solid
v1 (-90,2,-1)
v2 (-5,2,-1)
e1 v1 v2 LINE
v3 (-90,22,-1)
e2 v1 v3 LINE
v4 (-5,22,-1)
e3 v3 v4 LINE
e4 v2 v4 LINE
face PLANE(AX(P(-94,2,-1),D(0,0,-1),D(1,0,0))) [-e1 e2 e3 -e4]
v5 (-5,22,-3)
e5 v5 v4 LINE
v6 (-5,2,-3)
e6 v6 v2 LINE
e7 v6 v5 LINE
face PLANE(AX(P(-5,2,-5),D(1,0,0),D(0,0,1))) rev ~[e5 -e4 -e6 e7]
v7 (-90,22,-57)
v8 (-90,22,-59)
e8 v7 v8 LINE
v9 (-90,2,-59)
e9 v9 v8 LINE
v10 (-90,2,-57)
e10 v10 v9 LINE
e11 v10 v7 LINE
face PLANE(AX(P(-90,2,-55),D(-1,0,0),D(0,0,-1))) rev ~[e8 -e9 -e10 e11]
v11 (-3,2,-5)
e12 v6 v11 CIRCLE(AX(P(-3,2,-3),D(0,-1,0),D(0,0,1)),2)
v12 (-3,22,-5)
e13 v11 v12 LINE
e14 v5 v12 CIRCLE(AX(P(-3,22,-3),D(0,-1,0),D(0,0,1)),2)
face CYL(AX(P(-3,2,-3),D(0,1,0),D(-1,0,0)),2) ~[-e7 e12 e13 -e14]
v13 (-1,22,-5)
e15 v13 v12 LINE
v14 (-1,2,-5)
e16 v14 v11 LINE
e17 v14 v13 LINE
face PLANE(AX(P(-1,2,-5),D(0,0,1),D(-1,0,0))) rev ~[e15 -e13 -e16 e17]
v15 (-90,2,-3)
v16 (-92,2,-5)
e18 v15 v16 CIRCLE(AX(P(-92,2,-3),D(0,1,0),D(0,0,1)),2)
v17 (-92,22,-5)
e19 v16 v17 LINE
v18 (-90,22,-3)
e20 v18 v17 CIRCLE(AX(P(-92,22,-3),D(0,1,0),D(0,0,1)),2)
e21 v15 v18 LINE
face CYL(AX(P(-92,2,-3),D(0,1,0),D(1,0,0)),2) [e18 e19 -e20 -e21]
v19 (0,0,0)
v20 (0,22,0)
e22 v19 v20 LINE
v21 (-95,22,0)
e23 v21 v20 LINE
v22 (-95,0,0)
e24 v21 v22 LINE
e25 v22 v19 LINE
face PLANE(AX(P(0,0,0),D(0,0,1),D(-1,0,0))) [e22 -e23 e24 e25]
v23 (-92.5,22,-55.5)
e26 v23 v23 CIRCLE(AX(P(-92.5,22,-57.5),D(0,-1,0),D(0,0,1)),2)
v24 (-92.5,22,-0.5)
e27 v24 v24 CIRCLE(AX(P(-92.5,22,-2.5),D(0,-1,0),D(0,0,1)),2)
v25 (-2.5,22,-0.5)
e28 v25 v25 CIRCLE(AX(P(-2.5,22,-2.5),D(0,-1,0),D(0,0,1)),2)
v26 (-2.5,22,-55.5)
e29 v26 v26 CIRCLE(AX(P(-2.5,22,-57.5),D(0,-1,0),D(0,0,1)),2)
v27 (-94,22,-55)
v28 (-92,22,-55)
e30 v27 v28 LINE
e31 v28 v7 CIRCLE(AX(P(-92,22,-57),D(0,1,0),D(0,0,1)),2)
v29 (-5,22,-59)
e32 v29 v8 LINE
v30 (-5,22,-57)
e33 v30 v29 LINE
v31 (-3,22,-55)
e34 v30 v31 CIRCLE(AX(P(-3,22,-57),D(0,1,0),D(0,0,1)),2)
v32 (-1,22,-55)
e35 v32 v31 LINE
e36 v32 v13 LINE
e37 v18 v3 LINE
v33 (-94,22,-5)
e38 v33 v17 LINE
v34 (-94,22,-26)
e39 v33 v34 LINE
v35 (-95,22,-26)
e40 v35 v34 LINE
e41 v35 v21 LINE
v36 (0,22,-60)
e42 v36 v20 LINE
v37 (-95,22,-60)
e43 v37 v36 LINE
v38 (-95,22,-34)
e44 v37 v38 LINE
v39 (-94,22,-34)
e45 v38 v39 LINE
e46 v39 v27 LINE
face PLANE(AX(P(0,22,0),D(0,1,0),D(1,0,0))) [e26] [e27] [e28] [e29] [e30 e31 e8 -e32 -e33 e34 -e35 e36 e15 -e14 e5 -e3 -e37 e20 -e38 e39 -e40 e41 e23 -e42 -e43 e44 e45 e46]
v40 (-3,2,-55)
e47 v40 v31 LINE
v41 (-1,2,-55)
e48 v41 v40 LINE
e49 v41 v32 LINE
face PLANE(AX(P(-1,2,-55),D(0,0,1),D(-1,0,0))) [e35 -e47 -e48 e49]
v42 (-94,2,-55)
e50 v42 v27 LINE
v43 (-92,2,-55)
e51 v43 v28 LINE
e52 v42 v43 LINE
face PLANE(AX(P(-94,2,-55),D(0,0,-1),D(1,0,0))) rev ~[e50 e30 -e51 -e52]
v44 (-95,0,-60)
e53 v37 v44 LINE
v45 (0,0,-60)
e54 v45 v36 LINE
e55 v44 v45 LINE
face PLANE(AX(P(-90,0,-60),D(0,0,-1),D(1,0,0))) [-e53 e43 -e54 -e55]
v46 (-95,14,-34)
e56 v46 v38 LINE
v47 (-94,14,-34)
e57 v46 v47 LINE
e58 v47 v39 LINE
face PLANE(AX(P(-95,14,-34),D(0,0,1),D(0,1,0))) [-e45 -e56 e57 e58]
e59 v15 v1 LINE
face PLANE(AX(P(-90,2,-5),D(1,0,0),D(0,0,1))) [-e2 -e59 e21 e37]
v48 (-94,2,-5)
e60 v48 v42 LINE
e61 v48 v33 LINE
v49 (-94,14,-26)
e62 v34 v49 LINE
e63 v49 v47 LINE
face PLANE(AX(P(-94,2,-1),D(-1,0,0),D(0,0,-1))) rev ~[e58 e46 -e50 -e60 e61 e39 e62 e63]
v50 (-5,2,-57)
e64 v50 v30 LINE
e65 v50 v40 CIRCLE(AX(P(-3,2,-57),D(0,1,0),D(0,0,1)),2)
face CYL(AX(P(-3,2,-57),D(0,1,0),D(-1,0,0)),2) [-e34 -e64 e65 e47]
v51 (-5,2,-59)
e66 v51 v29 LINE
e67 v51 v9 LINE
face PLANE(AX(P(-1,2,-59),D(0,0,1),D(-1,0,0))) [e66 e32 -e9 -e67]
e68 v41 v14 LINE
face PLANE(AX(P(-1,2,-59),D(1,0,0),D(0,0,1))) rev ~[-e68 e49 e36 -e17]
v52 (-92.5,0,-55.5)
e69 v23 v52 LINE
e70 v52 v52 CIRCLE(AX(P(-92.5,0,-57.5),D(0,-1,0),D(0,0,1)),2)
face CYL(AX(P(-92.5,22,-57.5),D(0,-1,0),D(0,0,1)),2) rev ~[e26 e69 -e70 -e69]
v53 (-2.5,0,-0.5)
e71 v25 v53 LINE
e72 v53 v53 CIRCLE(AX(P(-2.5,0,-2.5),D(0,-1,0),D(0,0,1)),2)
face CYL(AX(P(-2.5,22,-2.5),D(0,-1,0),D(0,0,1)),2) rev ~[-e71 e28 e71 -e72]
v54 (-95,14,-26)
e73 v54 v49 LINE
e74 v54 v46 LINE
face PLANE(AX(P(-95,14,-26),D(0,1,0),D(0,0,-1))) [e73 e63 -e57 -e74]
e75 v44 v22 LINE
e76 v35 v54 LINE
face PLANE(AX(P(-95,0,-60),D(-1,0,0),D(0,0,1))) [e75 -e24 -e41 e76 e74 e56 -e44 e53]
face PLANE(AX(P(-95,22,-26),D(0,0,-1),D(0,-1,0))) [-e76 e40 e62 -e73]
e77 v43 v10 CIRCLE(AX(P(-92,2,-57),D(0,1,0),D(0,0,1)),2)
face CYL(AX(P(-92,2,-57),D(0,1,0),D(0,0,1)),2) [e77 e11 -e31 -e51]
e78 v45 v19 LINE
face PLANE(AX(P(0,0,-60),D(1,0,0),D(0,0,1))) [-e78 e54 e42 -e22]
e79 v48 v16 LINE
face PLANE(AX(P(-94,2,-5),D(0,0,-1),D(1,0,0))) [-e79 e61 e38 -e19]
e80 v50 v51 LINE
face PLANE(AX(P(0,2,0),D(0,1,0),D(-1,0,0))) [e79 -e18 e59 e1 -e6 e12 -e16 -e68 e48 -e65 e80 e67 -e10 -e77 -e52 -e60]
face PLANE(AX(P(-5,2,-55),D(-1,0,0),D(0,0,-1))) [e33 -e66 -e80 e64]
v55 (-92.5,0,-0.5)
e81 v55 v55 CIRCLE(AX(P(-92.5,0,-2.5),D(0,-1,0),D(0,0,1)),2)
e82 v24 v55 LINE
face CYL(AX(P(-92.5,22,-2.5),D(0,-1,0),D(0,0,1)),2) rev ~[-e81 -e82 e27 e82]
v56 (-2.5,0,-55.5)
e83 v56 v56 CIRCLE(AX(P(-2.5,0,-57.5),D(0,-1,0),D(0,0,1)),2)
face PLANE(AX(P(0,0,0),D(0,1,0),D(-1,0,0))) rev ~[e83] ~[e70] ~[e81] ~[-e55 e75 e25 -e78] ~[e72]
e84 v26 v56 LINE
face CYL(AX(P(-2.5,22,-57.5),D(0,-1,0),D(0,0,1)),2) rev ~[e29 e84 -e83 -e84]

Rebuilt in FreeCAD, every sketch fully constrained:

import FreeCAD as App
import Part
import Sketcher


def edges_at(feature, points):
    """Names of the edges that pass closest to the given points."""
    edges = feature.Shape.Edges
    near = lambda p: min(range(len(edges)), key=lambda i: edges[i].distToShape(Part.Vertex(*p))[0])
    return sorted({f"Edge{near(p) + 1}" for p in points})

doc = App.newDocument("Part")
params = doc.addObject("Spreadsheet::Sheet", "Params")
for row, (alias, value) in enumerate([
    ("sketch1_width", "90 mm"),
    ("sketch1_height", "60 mm"),
    ("pad1_length", "2 mm"),
    ("sketch2_width", "2 mm"),
    ("sketch2_height", "60 mm"),
    ("pad2_length", "5 mm"),
    ("sketch3_width", "95 mm"),
    ("sketch3_width2", "93 mm"),
    ("sketch3_height", "60 mm"),
    ("sketch3_height2", "58 mm"),
    ("pad3_length", "20 mm"),
    ("sketch4_width", "4 mm"),
    ("pad4_length", "20 mm"),
    ("sketch5_width", "4 mm"),
    ("pad5_length", "20 mm"),
    ("fillet_radius", "2 mm"),
    ("sketch6_diameter", "4 mm"),
    ("hole_diameter", "4 mm"),
    ("sketch7_width", "8 mm"),
    ("pocket1_length", "10 mm"),
], start=1):
    params.set(f"A{row}", alias)
    params.set(f"B{row}", "=" + value)
    params.setAlias(f"B{row}", alias)

body = doc.addObject("PartDesign::Body", "Body")

# Sketch on XZ plane
sketch1 = body.newObject("Sketcher::SketchObject", "Sketch")
sketch1.AttachmentSupport = (doc.getObject("XZ_Plane"), [""])
sketch1.MapMode = "FlatFace"
sketch1.addGeometry([
    Part.LineSegment(App.Vector(-90, 0, 0), App.Vector(0, 0, 0)),
    Part.LineSegment(App.Vector(0, 0, 0), App.Vector(0, -60, 0)),
    Part.LineSegment(App.Vector(0, -60, 0), App.Vector(-90, -60, 0)),
    Part.LineSegment(App.Vector(-90, -60, 0), App.Vector(-90, 0, 0)),
], False)
sketch1.addConstraint([
    Sketcher.Constraint("Coincident", 0, 2, 1, 1),
    Sketcher.Constraint("Coincident", 1, 2, 2, 1),
    Sketcher.Constraint("Coincident", 2, 2, 3, 1),
    Sketcher.Constraint("Coincident", 3, 2, 0, 1),
    Sketcher.Constraint("Horizontal", 0),
    Sketcher.Constraint("Vertical", 1),
    Sketcher.Constraint("Horizontal", 2),
    Sketcher.Constraint("Vertical", 3),
    Sketcher.Constraint("Coincident", 0, 2, -1, 1),
    Sketcher.Constraint("DistanceX", 0, 1, 0, 2, 90.0),
    Sketcher.Constraint("DistanceY", 1, 2, 1, 1, 60.0),
])
sketch1.setExpression("Constraints[9]", "Params.sketch1_width")
sketch1.setExpression("Constraints[10]", "Params.sketch1_height")
pad1 = body.newObject("PartDesign::Pad", "Pad")
pad1.Profile = sketch1
pad1.setExpression("Length", "Params.pad1_length")
pad1.Reversed = True

# Sketch on YZ plane
sketch2 = body.newObject("Sketcher::SketchObject", "Sketch001")
sketch2.AttachmentSupport = (doc.getObject("YZ_Plane"), [""])
sketch2.MapMode = "FlatFace"
sketch2.AttachmentOffset = App.Placement(App.Vector(0, 0, -90), App.Rotation())
sketch2.addGeometry([
    Part.LineSegment(App.Vector(2, -60, 0), App.Vector(0, -60, 0)),
    Part.LineSegment(App.Vector(0, -60, 0), App.Vector(0, 0, 0)),
    Part.LineSegment(App.Vector(0, 0, 0), App.Vector(2, 0, 0)),
    Part.LineSegment(App.Vector(2, 0, 0), App.Vector(2, -60, 0)),
], False)
sketch2.addConstraint([
    Sketcher.Constraint("Coincident", 0, 2, 1, 1),
    Sketcher.Constraint("Coincident", 1, 2, 2, 1),
    Sketcher.Constraint("Coincident", 2, 2, 3, 1),
    Sketcher.Constraint("Coincident", 3, 2, 0, 1),
    Sketcher.Constraint("Horizontal", 0),
    Sketcher.Constraint("Vertical", 1),
    Sketcher.Constraint("Horizontal", 2),
    Sketcher.Constraint("Vertical", 3),
    Sketcher.Constraint("Coincident", 1, 2, -1, 1),
    Sketcher.Constraint("DistanceX", 0, 2, 0, 1, 2.0),
    Sketcher.Constraint("DistanceY", 1, 1, 1, 2, 60.0),
])
sketch2.setExpression("Constraints[9]", "Params.sketch2_width")
sketch2.setExpression("Constraints[10]", "Params.sketch2_height")
pad2 = body.newObject("PartDesign::Pad", "Pad001")
pad2.Profile = sketch2
pad2.setExpression("Length", "Params.pad2_length")
pad2.Reversed = True

# Sketch on XZ plane
sketch3 = body.newObject("Sketcher::SketchObject", "Sketch002")
sketch3.AttachmentSupport = (doc.getObject("XZ_Plane"), [""])
sketch3.MapMode = "FlatFace"
sketch3.AttachmentOffset = App.Placement(App.Vector(0, 0, -2), App.Rotation())
sketch3.addGeometry([
    Part.LineSegment(App.Vector(0, -60, 0), App.Vector(-95, -60, 0)),  # 0
    Part.LineSegment(App.Vector(-95, -60, 0), App.Vector(-95, 0, 0)),  # 1
    Part.LineSegment(App.Vector(-95, 0, 0), App.Vector(0, 0, 0)),  # 2
    Part.LineSegment(App.Vector(0, 0, 0), App.Vector(0, -60, 0)),  # 3
    Part.LineSegment(App.Vector(-1, -59, 0), App.Vector(-1, -1, 0)),  # 4
    Part.LineSegment(App.Vector(-1, -1, 0), App.Vector(-94, -1, 0)),  # 5
    Part.LineSegment(App.Vector(-94, -1, 0), App.Vector(-94, -59, 0)),  # 6
    Part.LineSegment(App.Vector(-94, -59, 0), App.Vector(-1, -59, 0)),  # 7
], False)
sketch3.addConstraint([
    Sketcher.Constraint("Coincident", 0, 2, 1, 1),
    Sketcher.Constraint("Coincident", 1, 2, 2, 1),
    Sketcher.Constraint("Coincident", 2, 2, 3, 1),
    Sketcher.Constraint("Coincident", 3, 2, 0, 1),
    Sketcher.Constraint("Coincident", 4, 2, 5, 1),
    Sketcher.Constraint("Coincident", 5, 2, 6, 1),
    Sketcher.Constraint("Coincident", 6, 2, 7, 1),
    Sketcher.Constraint("Coincident", 7, 2, 4, 1),
    Sketcher.Constraint("Horizontal", 0),
    Sketcher.Constraint("Vertical", 1),
    Sketcher.Constraint("Horizontal", 2),
    Sketcher.Constraint("Vertical", 3),
    Sketcher.Constraint("Vertical", 4),
    Sketcher.Constraint("Horizontal", 5),
    Sketcher.Constraint("Vertical", 6),
    Sketcher.Constraint("Horizontal", 7),
    Sketcher.Constraint("Coincident", 2, 2, -1, 1),
    Sketcher.Constraint("DistanceX", 0, 2, 0, 1, 95.0),
    Sketcher.Constraint("DistanceX", 5, 2, 5, 1, 93.0),
    Sketcher.Constraint("DistanceY", 1, 1, 1, 2, 60.0),
    Sketcher.Constraint("DistanceY", 4, 1, 4, 2, 58.0),
    Sketcher.Constraint("DistanceX", 4, 2, -1, 1, 1.0),
    Sketcher.Constraint("DistanceY", 4, 2, -1, 1, 1.0),
])
sketch3.setExpression("Constraints[17]", "Params.sketch3_width")
sketch3.setExpression("Constraints[18]", "Params.sketch3_width2")
sketch3.setExpression("Constraints[19]", "Params.sketch3_height")
sketch3.setExpression("Constraints[20]", "Params.sketch3_height2")
pad3 = body.newObject("PartDesign::Pad", "Pad002")
pad3.Profile = sketch3
pad3.setExpression("Length", "Params.pad3_length")
pad3.Reversed = True

# Sketch on XZ plane
sketch4 = body.newObject("Sketcher::SketchObject", "Sketch003")
sketch4.AttachmentSupport = (doc.getObject("XZ_Plane"), [""])
sketch4.MapMode = "FlatFace"
sketch4.AttachmentOffset = App.Placement(App.Vector(0, 0, -2), App.Rotation())
sketch4.addGeometry([
    Part.LineSegment(App.Vector(-1, -1, 0), App.Vector(-1, -5, 0)),
    Part.LineSegment(App.Vector(-1, -5, 0), App.Vector(-5, -5, 0)),
    Part.LineSegment(App.Vector(-5, -5, 0), App.Vector(-5, -1, 0)),
    Part.LineSegment(App.Vector(-5, -1, 0), App.Vector(-1, -1, 0)),
], False)
sketch4.addConstraint([
    Sketcher.Constraint("Coincident", 0, 2, 1, 1),
    Sketcher.Constraint("Coincident", 1, 2, 2, 1),
    Sketcher.Constraint("Coincident", 2, 2, 3, 1),
    Sketcher.Constraint("Coincident", 3, 2, 0, 1),
    Sketcher.Constraint("Vertical", 0),
    Sketcher.Constraint("Horizontal", 1),
    Sketcher.Constraint("Vertical", 2),
    Sketcher.Constraint("Horizontal", 3),
    Sketcher.Constraint("Equal", 3, 0),
    Sketcher.Constraint("DistanceX", 1, 2, 1, 1, 4.0),
    Sketcher.Constraint("DistanceX", 0, 2, -1, 1, 1.0),
    Sketcher.Constraint("DistanceY", 0, 2, -1, 1, 5.0),
])
sketch4.setExpression("Constraints[9]", "Params.sketch4_width")
pad4 = body.newObject("PartDesign::Pad", "Pad003")
pad4.Profile = sketch4
pad4.setExpression("Length", "Params.pad4_length")
pad4.Reversed = True

# Sketch on XZ plane
sketch5 = body.newObject("Sketcher::SketchObject", "Sketch004")
sketch5.AttachmentSupport = (doc.getObject("XZ_Plane"), [""])
sketch5.MapMode = "FlatFace"
sketch5.AttachmentOffset = App.Placement(App.Vector(0, 0, -2), App.Rotation())
sketch5.addGeometry([
    Part.LineSegment(App.Vector(-90, -5, 0), App.Vector(-94, -5, 0)),  # 0
    Part.LineSegment(App.Vector(-94, -5, 0), App.Vector(-94, -1, 0)),  # 1
    Part.LineSegment(App.Vector(-94, -1, 0), App.Vector(-90, -1, 0)),  # 2
    Part.LineSegment(App.Vector(-90, -1, 0), App.Vector(-90, -5, 0)),  # 3
    Part.LineSegment(App.Vector(-90, -55, 0), App.Vector(-90, -59, 0)),  # 4
    Part.LineSegment(App.Vector(-90, -59, 0), App.Vector(-94, -59, 0)),  # 5
    Part.LineSegment(App.Vector(-94, -59, 0), App.Vector(-94, -55, 0)),  # 6
    Part.LineSegment(App.Vector(-94, -55, 0), App.Vector(-90, -55, 0)),  # 7
    Part.LineSegment(App.Vector(-1, -55, 0), App.Vector(-1, -59, 0)),  # 8
    Part.LineSegment(App.Vector(-1, -59, 0), App.Vector(-5, -59, 0)),  # 9
    Part.LineSegment(App.Vector(-5, -59, 0), App.Vector(-5, -55, 0)),  # 10
    Part.LineSegment(App.Vector(-5, -55, 0), App.Vector(-1, -55, 0)),  # 11
], False)
sketch5.addConstraint([
    Sketcher.Constraint("Coincident", 0, 2, 1, 1),
    Sketcher.Constraint("Coincident", 1, 2, 2, 1),
    Sketcher.Constraint("Coincident", 2, 2, 3, 1),
    Sketcher.Constraint("Coincident", 3, 2, 0, 1),
    Sketcher.Constraint("Coincident", 4, 2, 5, 1),
    Sketcher.Constraint("Coincident", 5, 2, 6, 1),
    Sketcher.Constraint("Coincident", 6, 2, 7, 1),
    Sketcher.Constraint("Coincident", 7, 2, 4, 1),
    Sketcher.Constraint("Coincident", 8, 2, 9, 1),
    Sketcher.Constraint("Coincident", 9, 2, 10, 1),
    Sketcher.Constraint("Coincident", 10, 2, 11, 1),
    Sketcher.Constraint("Coincident", 11, 2, 8, 1),
    Sketcher.Constraint("Horizontal", 0),
    Sketcher.Constraint("Vertical", 1),
    Sketcher.Constraint("Horizontal", 2),
    Sketcher.Constraint("Vertical", 3),
    Sketcher.Constraint("Vertical", 4),
    Sketcher.Constraint("Horizontal", 5),
    Sketcher.Constraint("Vertical", 6),
    Sketcher.Constraint("Horizontal", 7),
    Sketcher.Constraint("Vertical", 8),
    Sketcher.Constraint("Horizontal", 9),
    Sketcher.Constraint("Vertical", 10),
    Sketcher.Constraint("Horizontal", 11),
    Sketcher.Constraint("Horizontal", 5, 2, 8, 2),
    Sketcher.Constraint("Horizontal", 7, 2, 10, 2),
    Sketcher.Constraint("Vertical", 3, 2, 4, 2),
    Sketcher.Constraint("Vertical", 1, 2, 5, 2),
    Sketcher.Constraint("Equal", 7, 9),
    Sketcher.Constraint("Equal", 11, 1),
    Sketcher.Constraint("Equal", 3, 4),
    Sketcher.Constraint("DistanceX", 0, 2, 0, 1, 4.0),
    Sketcher.Constraint("DistanceX", 0, 2, -1, 1, 94.0),
    Sketcher.Constraint("DistanceY", 0, 2, -1, 1, 5.0),
    Sketcher.Constraint("DistanceY", 4, 2, -1, 1, 59.0),
    Sketcher.Constraint("DistanceX", 8, 2, -1, 1, 1.0),
])
sketch5.setExpression("Constraints[31]", "Params.sketch5_width")
pad5 = body.newObject("PartDesign::Pad", "Pad004")
pad5.Profile = sketch5
pad5.setExpression("Length", "Params.pad5_length")
pad5.Reversed = True
doc.recompute()

fillet = body.newObject("PartDesign::Fillet", "Fillet")
fillet.Base = (pad5, edges_at(pad5, [
    (-90, 12, -55),
    (-5, 12, -55),
    (-90, 12, -5),
    (-5, 12, -5),
]))
fillet.setExpression("Radius", "Params.fillet_radius")

# Sketch on XZ plane
sketch6 = body.newObject("Sketcher::SketchObject", "Sketch005")
sketch6.AttachmentSupport = (doc.getObject("XZ_Plane"), [""])
sketch6.MapMode = "FlatFace"
sketch6.AttachmentOffset = App.Placement(App.Vector(0, 0, -22), App.Rotation())
sketch6.addGeometry([
    Part.Circle(App.Vector(-2.5, -2.5, 0), App.Vector(0, 0, 1), 2),
    Part.Circle(App.Vector(-92.5, -2.5, 0), App.Vector(0, 0, 1), 2),
    Part.Circle(App.Vector(-92.5, -57.5, 0), App.Vector(0, 0, 1), 2),
    Part.Circle(App.Vector(-2.5, -57.5, 0), App.Vector(0, 0, 1), 2),
], False)
sketch6.addConstraint([
    Sketcher.Constraint("Equal", 0, 1),
    Sketcher.Constraint("Equal", 1, 2),
    Sketcher.Constraint("Equal", 2, 3),
    Sketcher.Constraint("Horizontal", 0, 3, 1, 3),
    Sketcher.Constraint("Horizontal", 2, 3, 3, 3),
    Sketcher.Constraint("Vertical", 1, 3, 2, 3),
    Sketcher.Constraint("Vertical", 0, 3, 3, 3),
    Sketcher.Constraint("Diameter", 0, 4.0),
    Sketcher.Constraint("DistanceX", 1, 3, 0, 3, 90.0),
    Sketcher.Constraint("DistanceY", 2, 3, 1, 3, 55.0),
    Sketcher.Constraint("DistanceX", 0, 3, -1, 1, 2.5),
    Sketcher.Constraint("DistanceY", 0, 3, -1, 1, 2.5),
])
sketch6.setExpression("Constraints[7]", "Params.sketch6_diameter")
doc.recompute()
hole = body.newObject("PartDesign::Hole", "Hole")
hole.Profile = sketch6
hole.ThreadType = "None"
hole.setExpression("Diameter", "Params.hole_diameter")
hole.DepthType = "ThroughAll"
hole.Reversed = True

# Sketch on YZ plane
sketch7 = body.newObject("Sketcher::SketchObject", "Sketch006")
sketch7.AttachmentSupport = (doc.getObject("YZ_Plane"), [""])
sketch7.MapMode = "FlatFace"
sketch7.AttachmentOffset = App.Placement(App.Vector(0, 0, -95), App.Rotation())
sketch7.addGeometry([
    Part.LineSegment(App.Vector(14, -26, 0), App.Vector(22, -26, 0)),
    Part.LineSegment(App.Vector(22, -26, 0), App.Vector(22, -34, 0)),
    Part.LineSegment(App.Vector(22, -34, 0), App.Vector(14, -34, 0)),
    Part.LineSegment(App.Vector(14, -34, 0), App.Vector(14, -26, 0)),
], False)
sketch7.addConstraint([
    Sketcher.Constraint("Coincident", 0, 2, 1, 1),
    Sketcher.Constraint("Coincident", 1, 2, 2, 1),
    Sketcher.Constraint("Coincident", 2, 2, 3, 1),
    Sketcher.Constraint("Coincident", 3, 2, 0, 1),
    Sketcher.Constraint("Horizontal", 0),
    Sketcher.Constraint("Vertical", 1),
    Sketcher.Constraint("Horizontal", 2),
    Sketcher.Constraint("Vertical", 3),
    Sketcher.Constraint("Equal", 2, 1),
    Sketcher.Constraint("DistanceX", 0, 1, 0, 2, 8.0),
    Sketcher.Constraint("DistanceX", -1, 1, 0, 2, 22.0),
    Sketcher.Constraint("DistanceY", 0, 2, -1, 1, 26.0),
])
sketch7.setExpression("Constraints[9]", "Params.sketch7_width")
pocket1 = body.newObject("PartDesign::Pocket", "Pocket")
pocket1.Profile = sketch7
pocket1.setExpression("Length", "Params.pocket1_length")
pocket1.Reversed = True

doc.recompute()
